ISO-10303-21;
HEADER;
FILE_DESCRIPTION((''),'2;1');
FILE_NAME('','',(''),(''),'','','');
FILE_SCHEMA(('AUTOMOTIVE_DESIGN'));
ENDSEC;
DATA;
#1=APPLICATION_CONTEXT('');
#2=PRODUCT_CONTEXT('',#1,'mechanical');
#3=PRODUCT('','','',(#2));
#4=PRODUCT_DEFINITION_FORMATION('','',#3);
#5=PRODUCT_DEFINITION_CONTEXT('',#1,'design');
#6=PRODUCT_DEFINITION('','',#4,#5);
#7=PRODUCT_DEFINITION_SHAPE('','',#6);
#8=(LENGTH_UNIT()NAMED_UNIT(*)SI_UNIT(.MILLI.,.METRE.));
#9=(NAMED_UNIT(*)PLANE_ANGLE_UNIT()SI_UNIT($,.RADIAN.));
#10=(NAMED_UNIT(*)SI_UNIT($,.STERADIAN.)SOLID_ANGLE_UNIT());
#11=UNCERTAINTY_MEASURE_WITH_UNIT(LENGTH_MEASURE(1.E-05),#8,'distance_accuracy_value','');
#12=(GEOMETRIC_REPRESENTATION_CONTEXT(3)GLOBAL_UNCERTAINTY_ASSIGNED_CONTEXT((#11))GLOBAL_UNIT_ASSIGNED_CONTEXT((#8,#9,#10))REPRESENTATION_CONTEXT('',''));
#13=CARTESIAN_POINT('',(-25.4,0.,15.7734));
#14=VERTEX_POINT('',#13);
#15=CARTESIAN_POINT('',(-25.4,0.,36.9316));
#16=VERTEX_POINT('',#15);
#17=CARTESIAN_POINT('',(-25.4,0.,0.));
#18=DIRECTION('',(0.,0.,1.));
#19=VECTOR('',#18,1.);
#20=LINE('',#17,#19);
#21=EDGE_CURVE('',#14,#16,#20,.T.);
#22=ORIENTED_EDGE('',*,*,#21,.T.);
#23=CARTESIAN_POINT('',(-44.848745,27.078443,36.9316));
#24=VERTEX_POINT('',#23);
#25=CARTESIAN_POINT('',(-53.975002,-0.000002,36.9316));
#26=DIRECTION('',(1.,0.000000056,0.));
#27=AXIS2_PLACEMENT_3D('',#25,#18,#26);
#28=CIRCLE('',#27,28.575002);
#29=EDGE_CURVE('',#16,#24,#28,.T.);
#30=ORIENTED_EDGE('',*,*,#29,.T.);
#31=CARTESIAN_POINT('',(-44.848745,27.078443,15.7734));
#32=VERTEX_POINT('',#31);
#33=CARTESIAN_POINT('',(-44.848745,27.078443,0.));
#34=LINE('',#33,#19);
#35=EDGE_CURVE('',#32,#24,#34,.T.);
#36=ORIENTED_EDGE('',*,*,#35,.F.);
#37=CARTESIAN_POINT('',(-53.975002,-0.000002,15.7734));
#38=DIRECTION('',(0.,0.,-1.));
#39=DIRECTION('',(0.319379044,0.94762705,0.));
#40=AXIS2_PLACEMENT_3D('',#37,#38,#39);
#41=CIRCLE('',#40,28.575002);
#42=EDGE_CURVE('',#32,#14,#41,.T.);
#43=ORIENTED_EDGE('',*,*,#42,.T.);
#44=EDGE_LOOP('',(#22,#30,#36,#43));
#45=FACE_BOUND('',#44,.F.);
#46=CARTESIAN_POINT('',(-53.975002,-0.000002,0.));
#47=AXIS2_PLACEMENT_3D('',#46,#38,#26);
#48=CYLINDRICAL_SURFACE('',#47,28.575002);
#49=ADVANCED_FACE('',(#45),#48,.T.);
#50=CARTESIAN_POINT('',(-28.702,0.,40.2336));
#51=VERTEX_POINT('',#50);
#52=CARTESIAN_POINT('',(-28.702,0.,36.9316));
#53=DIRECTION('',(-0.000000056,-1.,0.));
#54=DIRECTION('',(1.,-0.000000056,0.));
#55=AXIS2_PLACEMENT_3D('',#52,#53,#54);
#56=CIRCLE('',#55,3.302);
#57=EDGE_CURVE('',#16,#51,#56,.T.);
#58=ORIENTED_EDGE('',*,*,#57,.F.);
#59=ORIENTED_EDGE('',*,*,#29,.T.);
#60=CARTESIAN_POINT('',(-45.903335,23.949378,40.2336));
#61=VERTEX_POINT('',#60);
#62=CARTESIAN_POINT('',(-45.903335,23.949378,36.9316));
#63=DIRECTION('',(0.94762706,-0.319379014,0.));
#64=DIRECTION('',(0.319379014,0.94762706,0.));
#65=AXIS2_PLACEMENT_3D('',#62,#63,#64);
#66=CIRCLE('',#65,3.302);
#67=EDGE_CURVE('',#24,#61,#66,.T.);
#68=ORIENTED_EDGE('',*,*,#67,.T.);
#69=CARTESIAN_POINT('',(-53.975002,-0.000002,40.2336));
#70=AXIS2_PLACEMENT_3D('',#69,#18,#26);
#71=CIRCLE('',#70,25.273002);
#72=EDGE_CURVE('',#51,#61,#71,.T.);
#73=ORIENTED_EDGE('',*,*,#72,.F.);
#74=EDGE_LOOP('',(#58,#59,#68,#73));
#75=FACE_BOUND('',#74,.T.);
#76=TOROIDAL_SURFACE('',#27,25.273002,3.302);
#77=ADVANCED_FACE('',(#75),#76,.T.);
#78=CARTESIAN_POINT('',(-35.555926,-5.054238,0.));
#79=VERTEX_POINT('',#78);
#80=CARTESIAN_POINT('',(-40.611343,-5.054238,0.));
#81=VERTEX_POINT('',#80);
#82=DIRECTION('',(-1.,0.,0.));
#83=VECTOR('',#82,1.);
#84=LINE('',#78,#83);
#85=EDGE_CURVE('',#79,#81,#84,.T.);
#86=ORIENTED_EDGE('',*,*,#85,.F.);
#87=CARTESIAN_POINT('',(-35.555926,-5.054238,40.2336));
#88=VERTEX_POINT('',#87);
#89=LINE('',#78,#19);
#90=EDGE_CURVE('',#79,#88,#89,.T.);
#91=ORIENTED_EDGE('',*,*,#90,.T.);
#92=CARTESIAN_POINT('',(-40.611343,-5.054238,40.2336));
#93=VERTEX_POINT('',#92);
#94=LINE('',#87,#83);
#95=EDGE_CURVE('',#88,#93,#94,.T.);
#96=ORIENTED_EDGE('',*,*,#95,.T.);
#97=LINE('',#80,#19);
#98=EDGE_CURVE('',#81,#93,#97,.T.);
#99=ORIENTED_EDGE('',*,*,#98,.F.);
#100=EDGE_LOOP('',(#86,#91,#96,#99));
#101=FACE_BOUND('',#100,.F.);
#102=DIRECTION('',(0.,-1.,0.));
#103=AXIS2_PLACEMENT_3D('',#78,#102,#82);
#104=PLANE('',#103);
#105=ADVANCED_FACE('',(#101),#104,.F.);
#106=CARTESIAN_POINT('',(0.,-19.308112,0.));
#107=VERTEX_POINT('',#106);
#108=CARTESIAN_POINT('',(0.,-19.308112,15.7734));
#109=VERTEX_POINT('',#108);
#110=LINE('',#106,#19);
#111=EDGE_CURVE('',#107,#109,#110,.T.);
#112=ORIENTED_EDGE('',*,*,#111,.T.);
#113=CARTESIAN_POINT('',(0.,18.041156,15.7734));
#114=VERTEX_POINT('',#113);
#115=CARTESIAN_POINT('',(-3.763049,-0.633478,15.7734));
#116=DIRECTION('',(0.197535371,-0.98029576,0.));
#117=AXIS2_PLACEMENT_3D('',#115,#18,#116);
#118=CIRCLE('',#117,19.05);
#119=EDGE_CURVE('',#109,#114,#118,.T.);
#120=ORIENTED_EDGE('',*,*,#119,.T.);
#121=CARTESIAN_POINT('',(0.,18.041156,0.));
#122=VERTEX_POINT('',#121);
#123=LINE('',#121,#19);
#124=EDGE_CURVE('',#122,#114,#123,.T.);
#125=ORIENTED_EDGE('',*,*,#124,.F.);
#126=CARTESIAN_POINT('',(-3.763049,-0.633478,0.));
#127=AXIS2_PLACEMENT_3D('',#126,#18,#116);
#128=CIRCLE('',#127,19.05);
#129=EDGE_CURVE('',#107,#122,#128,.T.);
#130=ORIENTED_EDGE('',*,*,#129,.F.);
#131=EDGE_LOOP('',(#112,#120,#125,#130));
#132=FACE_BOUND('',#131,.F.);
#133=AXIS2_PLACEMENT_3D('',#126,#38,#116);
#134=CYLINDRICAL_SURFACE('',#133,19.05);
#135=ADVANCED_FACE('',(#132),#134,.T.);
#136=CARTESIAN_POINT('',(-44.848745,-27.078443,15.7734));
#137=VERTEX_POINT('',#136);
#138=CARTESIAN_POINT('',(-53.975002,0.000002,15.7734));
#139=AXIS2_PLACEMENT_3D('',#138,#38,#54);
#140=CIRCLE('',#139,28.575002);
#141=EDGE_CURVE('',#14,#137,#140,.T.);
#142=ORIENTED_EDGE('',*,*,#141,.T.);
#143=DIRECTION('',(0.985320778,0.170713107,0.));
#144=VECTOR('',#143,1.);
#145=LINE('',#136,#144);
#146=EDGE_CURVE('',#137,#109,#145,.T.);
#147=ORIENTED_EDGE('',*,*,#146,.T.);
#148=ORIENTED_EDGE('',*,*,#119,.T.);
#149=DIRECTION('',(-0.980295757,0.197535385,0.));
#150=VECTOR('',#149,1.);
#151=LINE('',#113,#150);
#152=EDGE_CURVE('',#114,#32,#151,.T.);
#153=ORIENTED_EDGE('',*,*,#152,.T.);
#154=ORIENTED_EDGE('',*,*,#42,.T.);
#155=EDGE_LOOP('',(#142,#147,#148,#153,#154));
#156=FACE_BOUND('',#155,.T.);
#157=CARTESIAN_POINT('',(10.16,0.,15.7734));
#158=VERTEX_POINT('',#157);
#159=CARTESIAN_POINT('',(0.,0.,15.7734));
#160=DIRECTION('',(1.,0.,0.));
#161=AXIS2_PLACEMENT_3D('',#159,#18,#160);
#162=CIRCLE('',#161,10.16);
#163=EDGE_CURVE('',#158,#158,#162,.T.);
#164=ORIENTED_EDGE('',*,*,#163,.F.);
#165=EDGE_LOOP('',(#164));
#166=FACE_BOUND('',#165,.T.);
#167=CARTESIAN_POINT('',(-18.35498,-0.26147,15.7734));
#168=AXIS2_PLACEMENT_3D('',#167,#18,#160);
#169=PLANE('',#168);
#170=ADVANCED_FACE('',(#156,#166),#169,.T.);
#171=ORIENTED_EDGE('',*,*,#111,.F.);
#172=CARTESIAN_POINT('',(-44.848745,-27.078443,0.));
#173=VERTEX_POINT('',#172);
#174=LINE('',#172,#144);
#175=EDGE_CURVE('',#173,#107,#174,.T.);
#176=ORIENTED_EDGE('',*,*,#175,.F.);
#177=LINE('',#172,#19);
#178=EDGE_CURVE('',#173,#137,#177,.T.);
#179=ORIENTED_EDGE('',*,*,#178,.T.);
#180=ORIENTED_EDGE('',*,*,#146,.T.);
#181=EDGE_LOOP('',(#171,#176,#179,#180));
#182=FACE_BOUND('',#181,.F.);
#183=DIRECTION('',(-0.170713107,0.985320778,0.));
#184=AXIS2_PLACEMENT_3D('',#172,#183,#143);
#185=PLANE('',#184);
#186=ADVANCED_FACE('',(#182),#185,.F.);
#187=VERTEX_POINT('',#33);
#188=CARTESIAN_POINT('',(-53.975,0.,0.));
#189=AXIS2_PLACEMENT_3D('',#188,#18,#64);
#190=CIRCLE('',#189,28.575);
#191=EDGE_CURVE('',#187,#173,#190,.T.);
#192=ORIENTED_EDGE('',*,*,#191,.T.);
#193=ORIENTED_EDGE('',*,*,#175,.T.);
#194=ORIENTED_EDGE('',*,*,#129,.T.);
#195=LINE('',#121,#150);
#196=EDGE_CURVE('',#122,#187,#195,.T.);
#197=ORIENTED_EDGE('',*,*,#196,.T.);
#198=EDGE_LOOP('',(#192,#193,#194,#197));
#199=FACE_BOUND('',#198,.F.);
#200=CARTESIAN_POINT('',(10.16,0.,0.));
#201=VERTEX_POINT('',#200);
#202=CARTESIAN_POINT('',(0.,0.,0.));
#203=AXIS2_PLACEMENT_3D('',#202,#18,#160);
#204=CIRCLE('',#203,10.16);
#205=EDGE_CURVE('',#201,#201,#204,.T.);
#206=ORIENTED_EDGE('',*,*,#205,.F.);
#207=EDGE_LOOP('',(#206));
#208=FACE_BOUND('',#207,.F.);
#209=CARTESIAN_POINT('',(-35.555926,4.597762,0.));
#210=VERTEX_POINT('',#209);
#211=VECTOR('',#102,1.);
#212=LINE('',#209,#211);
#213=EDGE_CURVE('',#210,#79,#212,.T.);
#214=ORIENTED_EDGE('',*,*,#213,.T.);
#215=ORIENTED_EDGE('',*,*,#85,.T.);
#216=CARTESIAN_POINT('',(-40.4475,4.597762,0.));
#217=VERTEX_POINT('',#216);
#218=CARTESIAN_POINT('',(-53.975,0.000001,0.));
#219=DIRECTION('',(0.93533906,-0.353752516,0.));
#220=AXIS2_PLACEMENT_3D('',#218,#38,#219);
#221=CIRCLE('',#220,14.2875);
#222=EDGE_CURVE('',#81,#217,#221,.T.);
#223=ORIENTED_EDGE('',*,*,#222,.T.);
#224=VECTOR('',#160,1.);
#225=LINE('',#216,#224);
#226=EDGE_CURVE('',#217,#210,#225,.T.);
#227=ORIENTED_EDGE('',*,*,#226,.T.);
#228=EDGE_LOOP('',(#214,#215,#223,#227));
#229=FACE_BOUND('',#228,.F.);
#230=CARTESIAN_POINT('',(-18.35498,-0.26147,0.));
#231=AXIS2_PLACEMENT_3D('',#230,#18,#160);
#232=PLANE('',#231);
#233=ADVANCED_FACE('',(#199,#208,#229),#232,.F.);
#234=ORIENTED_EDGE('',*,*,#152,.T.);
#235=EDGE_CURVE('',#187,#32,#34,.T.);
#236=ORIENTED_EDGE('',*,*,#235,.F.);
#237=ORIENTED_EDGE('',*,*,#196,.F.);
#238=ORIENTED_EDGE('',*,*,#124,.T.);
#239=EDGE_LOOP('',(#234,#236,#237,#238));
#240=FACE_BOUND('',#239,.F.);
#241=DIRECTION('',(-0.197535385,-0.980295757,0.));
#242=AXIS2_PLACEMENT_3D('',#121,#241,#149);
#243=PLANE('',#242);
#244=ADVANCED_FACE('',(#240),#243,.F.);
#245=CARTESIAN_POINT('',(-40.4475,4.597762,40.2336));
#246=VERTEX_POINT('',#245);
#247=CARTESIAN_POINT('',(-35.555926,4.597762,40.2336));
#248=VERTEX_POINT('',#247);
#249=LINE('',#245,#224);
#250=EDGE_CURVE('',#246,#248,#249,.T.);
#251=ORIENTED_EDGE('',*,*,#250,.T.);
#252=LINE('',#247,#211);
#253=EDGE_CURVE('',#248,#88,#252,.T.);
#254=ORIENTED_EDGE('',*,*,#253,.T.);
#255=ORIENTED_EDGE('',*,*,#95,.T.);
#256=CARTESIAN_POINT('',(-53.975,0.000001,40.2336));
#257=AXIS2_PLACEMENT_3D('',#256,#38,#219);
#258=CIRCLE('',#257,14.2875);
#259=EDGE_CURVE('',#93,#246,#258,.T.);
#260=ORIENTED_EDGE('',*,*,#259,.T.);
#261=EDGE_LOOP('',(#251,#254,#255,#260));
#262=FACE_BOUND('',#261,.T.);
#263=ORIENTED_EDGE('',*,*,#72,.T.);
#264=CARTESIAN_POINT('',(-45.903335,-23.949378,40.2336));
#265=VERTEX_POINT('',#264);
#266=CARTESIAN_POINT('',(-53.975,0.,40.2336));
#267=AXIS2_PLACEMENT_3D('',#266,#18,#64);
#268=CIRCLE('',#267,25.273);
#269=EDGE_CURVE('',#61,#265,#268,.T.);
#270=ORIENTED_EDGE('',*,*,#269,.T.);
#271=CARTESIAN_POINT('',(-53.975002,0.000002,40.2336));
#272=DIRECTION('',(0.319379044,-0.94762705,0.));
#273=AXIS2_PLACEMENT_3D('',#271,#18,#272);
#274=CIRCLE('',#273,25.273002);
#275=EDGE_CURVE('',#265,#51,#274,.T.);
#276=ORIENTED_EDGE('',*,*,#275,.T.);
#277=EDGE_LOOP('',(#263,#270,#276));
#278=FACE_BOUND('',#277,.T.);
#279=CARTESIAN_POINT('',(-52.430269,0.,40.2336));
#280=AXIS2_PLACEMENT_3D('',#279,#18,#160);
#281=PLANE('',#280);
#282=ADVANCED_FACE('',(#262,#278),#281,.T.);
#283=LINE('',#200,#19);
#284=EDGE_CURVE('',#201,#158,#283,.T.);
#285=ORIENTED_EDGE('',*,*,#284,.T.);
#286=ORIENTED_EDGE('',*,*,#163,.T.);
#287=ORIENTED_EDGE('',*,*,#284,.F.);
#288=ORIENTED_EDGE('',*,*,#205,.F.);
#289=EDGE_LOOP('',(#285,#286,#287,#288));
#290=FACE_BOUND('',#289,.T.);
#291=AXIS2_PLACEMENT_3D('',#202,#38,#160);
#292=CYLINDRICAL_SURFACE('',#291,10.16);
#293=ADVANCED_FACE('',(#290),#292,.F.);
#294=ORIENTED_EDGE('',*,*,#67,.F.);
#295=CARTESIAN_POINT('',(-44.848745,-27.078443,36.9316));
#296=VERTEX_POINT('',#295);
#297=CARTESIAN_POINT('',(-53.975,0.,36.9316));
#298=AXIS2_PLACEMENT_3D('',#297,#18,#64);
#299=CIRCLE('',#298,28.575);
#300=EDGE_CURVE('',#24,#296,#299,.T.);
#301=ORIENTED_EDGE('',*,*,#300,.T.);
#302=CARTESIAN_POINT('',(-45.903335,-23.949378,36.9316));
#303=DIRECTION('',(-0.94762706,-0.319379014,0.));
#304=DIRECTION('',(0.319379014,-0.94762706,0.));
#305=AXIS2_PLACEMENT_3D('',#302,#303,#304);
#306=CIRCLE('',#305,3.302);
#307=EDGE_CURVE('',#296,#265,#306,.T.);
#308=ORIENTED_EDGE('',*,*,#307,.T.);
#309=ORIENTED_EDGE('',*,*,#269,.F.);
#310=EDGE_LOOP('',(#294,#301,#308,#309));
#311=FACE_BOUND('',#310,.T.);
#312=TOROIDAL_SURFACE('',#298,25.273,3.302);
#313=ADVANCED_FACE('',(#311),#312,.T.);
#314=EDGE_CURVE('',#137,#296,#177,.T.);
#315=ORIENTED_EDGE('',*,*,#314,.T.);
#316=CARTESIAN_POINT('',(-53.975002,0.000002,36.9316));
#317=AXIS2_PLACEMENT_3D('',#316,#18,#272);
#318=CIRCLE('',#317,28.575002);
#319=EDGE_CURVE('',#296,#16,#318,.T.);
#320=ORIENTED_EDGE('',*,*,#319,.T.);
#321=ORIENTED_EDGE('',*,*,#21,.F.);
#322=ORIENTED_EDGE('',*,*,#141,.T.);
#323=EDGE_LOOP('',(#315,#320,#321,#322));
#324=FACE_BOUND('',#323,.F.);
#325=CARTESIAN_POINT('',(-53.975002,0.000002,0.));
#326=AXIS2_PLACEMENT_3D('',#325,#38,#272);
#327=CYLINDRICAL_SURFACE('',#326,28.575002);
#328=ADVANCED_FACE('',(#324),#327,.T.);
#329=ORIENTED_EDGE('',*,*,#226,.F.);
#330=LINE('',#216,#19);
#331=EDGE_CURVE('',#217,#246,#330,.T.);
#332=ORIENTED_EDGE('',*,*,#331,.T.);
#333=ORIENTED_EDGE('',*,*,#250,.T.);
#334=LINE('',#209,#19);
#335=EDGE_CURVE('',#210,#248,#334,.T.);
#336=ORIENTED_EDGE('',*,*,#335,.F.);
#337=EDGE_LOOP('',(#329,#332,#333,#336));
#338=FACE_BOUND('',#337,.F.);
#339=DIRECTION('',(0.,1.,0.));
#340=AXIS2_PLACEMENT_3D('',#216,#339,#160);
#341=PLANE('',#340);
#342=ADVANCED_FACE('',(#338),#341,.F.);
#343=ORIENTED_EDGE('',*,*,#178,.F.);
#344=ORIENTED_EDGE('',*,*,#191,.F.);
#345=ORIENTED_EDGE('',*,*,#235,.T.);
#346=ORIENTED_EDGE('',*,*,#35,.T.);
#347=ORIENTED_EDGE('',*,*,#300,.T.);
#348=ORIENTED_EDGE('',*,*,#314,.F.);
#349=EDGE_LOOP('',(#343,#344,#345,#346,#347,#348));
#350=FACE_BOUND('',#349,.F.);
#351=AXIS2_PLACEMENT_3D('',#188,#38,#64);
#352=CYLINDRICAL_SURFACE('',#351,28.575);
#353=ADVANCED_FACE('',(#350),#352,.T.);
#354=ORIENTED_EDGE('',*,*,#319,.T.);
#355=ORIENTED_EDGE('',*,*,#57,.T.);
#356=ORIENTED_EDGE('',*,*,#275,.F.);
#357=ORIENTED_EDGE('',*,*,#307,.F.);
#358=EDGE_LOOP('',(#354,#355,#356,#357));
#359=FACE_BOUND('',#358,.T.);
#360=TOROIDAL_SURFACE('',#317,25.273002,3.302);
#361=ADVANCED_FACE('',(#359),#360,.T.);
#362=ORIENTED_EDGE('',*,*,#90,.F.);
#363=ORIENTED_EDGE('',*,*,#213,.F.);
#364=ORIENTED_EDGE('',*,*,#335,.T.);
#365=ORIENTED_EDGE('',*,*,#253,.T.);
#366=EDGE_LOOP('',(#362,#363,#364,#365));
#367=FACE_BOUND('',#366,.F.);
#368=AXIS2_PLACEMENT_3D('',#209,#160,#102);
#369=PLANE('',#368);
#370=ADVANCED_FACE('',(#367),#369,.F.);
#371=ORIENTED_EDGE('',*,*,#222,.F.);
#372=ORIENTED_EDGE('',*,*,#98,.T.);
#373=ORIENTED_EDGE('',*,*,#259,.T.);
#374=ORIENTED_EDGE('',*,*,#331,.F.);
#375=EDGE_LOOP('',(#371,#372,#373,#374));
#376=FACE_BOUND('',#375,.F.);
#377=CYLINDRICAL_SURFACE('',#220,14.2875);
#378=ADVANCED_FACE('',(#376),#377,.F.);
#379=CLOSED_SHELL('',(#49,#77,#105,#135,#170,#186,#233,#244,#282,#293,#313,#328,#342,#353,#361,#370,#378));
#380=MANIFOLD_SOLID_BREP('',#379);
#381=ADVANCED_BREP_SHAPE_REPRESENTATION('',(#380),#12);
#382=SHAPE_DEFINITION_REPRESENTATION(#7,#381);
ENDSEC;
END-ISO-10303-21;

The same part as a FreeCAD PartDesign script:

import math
import FreeCAD as App
import Part
import Sketcher
Q = App.Units.Quantity


def edges_at(feature, points):
    """Names of the edges that pass closest to the given points."""
    edges = feature.Shape.Edges
    near = lambda p: min(range(len(edges)), key=lambda i: edges[i].distToShape(Part.Vertex(*p))[0])
    return sorted({f"Edge{near(p) + 1}" for p in points})

doc = App.newDocument("Part")
body = doc.addObject("PartDesign::Body", "Body")

# Sketch on XY plane
sketch1 = body.newObject("Sketcher::SketchObject", "Sketch")
sketch1.AttachmentSupport = (doc.getObject("XY_Plane"), [""])
sketch1.MapMode = "FlatFace"
sketch1.addGeometry(Part.ArcOfCircle(Part.Circle(App.Vector(-54, 0, 0), App.Vector(0, 0, 1), 28.6), math.radians(-71), math.radians(0)), False)
sketch1.addGeometry(Part.ArcOfCircle(Part.Circle(App.Vector(-54, 0, 0), App.Vector(0, 0, 1), 28.6), math.radians(0), math.radians(71)), False)
sketch1.addGeometry(Part.ArcOfCircle(Part.Circle(App.Vector(-54, 0, 0), App.Vector(0, 0, 1), 28.6), math.radians(71), math.radians(289)), False)
sketch1.addGeometry(Part.LineSegment(App.Vector(-35.6, -5.1, 0), App.Vector(-40.6, -5.1, 0)), False)
sketch1.addGeometry(Part.ArcOfCircle(Part.Circle(App.Vector(-54, 0, 0), App.Vector(0, 0, 1), 14.3), math.radians(19), math.radians(339)), False)
sketch1.addGeometry(Part.LineSegment(App.Vector(-40.4, 4.6, 0), App.Vector(-35.6, 4.6, 0)), False)
sketch1.addGeometry(Part.LineSegment(App.Vector(-35.6, 4.6, 0), App.Vector(-35.6, -5.1, 0)), False)
sketch1.addConstraint(Sketcher.Constraint("Tangent", 0, 2, 1, 1))
sketch1.addConstraint(Sketcher.Constraint("Tangent", 1, 2, 2, 1))
sketch1.addConstraint(Sketcher.Constraint("Tangent", 2, 2, 0, 1))
sketch1.addConstraint(Sketcher.Constraint("Coincident", 3, 2, 4, 2))
sketch1.addConstraint(Sketcher.Constraint("Coincident", 4, 1, 5, 1))
sketch1.addConstraint(Sketcher.Constraint("Coincident", 5, 2, 6, 1))
sketch1.addConstraint(Sketcher.Constraint("Coincident", 6, 2, 3, 1))
sketch1.addConstraint(Sketcher.Constraint("Horizontal", 3))
sketch1.addConstraint(Sketcher.Constraint("Horizontal", 5))
sketch1.addConstraint(Sketcher.Constraint("Vertical", 6))
sketch1.addConstraint(Sketcher.Constraint("Coincident", 4, 3, 0, 3))
sketch1.addConstraint(Sketcher.Constraint("Symmetric", 1, 2, 2, 2, -1))
sketch1.addConstraint(Sketcher.Constraint("PointOnObject", 0, 2, -1))
sketch1.addConstraint(Sketcher.Constraint("DistanceX", 0, 2, -1, 1, Q("1 in")))
sketch1.addConstraint(Sketcher.Constraint("Radius", 0, Q("1.1250001 in")))
sketch1.addConstraint(Sketcher.Constraint("Radius", 4, Q("0.5625 in")))
sketch1.addConstraint(Sketcher.Constraint("DistanceY", 6, 2, 6, 1, Q("0.38 in")))
sketch1.addConstraint(Sketcher.Constraint("DistanceX", 4, 1, -1, 1, Q("40.4475 mm")))
sketch1.addConstraint(Sketcher.Constraint("DistanceX", 3, 2, 3, 1, Q("5.055417 mm")))
sketch1.addConstraint(Sketcher.Constraint("DistanceY", 4, 3, 1, 2, Q("27.078442 mm")))
pad1 = body.newObject("PartDesign::Pad", "Pad")
pad1.Profile = sketch1
pad1.Length = Q("1.584 in")

# Sketch on XY plane
sketch2 = body.newObject("Sketcher::SketchObject", "Sketch001")
sketch2.AttachmentSupport = (doc.getObject("XY_Plane"), [""])
sketch2.MapMode = "FlatFace"
sketch2.addGeometry(Part.ArcOfCircle(Part.Circle(App.Vector(-54, 0, 0), App.Vector(0, 0, 1), 29), math.radians(0), math.radians(71)), False)
sketch2.addGeometry(Part.ArcOfCircle(Part.Circle(App.Vector(-54, 0, 0), App.Vector(0, 0, 1), 29), math.radians(-71), math.radians(0)), False)
sketch2.addGeometry(Part.LineSegment(App.Vector(-45, -27, 0), App.Vector(0, -19, 0)), False)
sketch2.addGeometry(Part.ArcOfCircle(Part.Circle(App.Vector(-4, -1, 0), App.Vector(0, 0, 1), 19), math.radians(-79), math.radians(79)), False)
sketch2.addGeometry(Part.LineSegment(App.Vector(0, 18, 0), App.Vector(-45, 27, 0)), False)
sketch2.addGeometry(Part.Circle(App.Vector(0, 0, 0), App.Vector(0, 0, 1), 10), False)
sketch2.addConstraint(Sketcher.Constraint("Tangent", 0, 1, 1, 2))
sketch2.addConstraint(Sketcher.Constraint("Coincident", 1, 1, 2, 1))
sketch2.addConstraint(Sketcher.Constraint("Coincident", 2, 2, 3, 1))
sketch2.addConstraint(Sketcher.Constraint("Tangent", 3, 2, 4, 1))
sketch2.addConstraint(Sketcher.Constraint("Coincident", 4, 2, 0, 2))
sketch2.addConstraint(Sketcher.Constraint("Coincident", 5, 3, -1, 1))
sketch2.addConstraint(Sketcher.Constraint("Equal", 0, 1))
sketch2.addConstraint(Sketcher.Constraint("Symmetric", 1, 1, 4, 2, -1))
sketch2.addConstraint(Sketcher.Constraint("PointOnObject", 0, 1, -1))
sketch2.addConstraint(Sketcher.Constraint("PointOnObject", 2, 2, -2))
sketch2.addConstraint(Sketcher.Constraint("PointOnObject", 3, 2, -2))
sketch2.addConstraint(Sketcher.Constraint("Diameter", 5, Q("0.8 in")))
sketch2.addConstraint(Sketcher.Constraint("Radius", 3, Q("0.75 in")))
sketch2.addConstraint(Sketcher.Constraint("DistanceX", 0, 1, -1, 1, Q("1 in")))
sketch2.addConstraint(Sketcher.Constraint("Radius", 0, Q("1.1250001 in")))
sketch2.addConstraint(Sketcher.Constraint("Distance", 4, Q("45.750218 mm")))
sketch2.addConstraint(Sketcher.Constraint("DistanceX", 3, 3, -1, 1, Q("3.763049 mm")))
pad2 = body.newObject("PartDesign::Pad", "Pad001")
pad2.Profile = sketch2
pad2.Length = Q("0.621 in")
doc.recompute()

fillet = body.newObject("PartDesign::Fillet", "Fillet")
fillet.Base = (pad2, edges_at(pad2, [(-82.55, 0, 40.234)]))
fillet.Radius = Q("0.13 in")

doc.recompute()
